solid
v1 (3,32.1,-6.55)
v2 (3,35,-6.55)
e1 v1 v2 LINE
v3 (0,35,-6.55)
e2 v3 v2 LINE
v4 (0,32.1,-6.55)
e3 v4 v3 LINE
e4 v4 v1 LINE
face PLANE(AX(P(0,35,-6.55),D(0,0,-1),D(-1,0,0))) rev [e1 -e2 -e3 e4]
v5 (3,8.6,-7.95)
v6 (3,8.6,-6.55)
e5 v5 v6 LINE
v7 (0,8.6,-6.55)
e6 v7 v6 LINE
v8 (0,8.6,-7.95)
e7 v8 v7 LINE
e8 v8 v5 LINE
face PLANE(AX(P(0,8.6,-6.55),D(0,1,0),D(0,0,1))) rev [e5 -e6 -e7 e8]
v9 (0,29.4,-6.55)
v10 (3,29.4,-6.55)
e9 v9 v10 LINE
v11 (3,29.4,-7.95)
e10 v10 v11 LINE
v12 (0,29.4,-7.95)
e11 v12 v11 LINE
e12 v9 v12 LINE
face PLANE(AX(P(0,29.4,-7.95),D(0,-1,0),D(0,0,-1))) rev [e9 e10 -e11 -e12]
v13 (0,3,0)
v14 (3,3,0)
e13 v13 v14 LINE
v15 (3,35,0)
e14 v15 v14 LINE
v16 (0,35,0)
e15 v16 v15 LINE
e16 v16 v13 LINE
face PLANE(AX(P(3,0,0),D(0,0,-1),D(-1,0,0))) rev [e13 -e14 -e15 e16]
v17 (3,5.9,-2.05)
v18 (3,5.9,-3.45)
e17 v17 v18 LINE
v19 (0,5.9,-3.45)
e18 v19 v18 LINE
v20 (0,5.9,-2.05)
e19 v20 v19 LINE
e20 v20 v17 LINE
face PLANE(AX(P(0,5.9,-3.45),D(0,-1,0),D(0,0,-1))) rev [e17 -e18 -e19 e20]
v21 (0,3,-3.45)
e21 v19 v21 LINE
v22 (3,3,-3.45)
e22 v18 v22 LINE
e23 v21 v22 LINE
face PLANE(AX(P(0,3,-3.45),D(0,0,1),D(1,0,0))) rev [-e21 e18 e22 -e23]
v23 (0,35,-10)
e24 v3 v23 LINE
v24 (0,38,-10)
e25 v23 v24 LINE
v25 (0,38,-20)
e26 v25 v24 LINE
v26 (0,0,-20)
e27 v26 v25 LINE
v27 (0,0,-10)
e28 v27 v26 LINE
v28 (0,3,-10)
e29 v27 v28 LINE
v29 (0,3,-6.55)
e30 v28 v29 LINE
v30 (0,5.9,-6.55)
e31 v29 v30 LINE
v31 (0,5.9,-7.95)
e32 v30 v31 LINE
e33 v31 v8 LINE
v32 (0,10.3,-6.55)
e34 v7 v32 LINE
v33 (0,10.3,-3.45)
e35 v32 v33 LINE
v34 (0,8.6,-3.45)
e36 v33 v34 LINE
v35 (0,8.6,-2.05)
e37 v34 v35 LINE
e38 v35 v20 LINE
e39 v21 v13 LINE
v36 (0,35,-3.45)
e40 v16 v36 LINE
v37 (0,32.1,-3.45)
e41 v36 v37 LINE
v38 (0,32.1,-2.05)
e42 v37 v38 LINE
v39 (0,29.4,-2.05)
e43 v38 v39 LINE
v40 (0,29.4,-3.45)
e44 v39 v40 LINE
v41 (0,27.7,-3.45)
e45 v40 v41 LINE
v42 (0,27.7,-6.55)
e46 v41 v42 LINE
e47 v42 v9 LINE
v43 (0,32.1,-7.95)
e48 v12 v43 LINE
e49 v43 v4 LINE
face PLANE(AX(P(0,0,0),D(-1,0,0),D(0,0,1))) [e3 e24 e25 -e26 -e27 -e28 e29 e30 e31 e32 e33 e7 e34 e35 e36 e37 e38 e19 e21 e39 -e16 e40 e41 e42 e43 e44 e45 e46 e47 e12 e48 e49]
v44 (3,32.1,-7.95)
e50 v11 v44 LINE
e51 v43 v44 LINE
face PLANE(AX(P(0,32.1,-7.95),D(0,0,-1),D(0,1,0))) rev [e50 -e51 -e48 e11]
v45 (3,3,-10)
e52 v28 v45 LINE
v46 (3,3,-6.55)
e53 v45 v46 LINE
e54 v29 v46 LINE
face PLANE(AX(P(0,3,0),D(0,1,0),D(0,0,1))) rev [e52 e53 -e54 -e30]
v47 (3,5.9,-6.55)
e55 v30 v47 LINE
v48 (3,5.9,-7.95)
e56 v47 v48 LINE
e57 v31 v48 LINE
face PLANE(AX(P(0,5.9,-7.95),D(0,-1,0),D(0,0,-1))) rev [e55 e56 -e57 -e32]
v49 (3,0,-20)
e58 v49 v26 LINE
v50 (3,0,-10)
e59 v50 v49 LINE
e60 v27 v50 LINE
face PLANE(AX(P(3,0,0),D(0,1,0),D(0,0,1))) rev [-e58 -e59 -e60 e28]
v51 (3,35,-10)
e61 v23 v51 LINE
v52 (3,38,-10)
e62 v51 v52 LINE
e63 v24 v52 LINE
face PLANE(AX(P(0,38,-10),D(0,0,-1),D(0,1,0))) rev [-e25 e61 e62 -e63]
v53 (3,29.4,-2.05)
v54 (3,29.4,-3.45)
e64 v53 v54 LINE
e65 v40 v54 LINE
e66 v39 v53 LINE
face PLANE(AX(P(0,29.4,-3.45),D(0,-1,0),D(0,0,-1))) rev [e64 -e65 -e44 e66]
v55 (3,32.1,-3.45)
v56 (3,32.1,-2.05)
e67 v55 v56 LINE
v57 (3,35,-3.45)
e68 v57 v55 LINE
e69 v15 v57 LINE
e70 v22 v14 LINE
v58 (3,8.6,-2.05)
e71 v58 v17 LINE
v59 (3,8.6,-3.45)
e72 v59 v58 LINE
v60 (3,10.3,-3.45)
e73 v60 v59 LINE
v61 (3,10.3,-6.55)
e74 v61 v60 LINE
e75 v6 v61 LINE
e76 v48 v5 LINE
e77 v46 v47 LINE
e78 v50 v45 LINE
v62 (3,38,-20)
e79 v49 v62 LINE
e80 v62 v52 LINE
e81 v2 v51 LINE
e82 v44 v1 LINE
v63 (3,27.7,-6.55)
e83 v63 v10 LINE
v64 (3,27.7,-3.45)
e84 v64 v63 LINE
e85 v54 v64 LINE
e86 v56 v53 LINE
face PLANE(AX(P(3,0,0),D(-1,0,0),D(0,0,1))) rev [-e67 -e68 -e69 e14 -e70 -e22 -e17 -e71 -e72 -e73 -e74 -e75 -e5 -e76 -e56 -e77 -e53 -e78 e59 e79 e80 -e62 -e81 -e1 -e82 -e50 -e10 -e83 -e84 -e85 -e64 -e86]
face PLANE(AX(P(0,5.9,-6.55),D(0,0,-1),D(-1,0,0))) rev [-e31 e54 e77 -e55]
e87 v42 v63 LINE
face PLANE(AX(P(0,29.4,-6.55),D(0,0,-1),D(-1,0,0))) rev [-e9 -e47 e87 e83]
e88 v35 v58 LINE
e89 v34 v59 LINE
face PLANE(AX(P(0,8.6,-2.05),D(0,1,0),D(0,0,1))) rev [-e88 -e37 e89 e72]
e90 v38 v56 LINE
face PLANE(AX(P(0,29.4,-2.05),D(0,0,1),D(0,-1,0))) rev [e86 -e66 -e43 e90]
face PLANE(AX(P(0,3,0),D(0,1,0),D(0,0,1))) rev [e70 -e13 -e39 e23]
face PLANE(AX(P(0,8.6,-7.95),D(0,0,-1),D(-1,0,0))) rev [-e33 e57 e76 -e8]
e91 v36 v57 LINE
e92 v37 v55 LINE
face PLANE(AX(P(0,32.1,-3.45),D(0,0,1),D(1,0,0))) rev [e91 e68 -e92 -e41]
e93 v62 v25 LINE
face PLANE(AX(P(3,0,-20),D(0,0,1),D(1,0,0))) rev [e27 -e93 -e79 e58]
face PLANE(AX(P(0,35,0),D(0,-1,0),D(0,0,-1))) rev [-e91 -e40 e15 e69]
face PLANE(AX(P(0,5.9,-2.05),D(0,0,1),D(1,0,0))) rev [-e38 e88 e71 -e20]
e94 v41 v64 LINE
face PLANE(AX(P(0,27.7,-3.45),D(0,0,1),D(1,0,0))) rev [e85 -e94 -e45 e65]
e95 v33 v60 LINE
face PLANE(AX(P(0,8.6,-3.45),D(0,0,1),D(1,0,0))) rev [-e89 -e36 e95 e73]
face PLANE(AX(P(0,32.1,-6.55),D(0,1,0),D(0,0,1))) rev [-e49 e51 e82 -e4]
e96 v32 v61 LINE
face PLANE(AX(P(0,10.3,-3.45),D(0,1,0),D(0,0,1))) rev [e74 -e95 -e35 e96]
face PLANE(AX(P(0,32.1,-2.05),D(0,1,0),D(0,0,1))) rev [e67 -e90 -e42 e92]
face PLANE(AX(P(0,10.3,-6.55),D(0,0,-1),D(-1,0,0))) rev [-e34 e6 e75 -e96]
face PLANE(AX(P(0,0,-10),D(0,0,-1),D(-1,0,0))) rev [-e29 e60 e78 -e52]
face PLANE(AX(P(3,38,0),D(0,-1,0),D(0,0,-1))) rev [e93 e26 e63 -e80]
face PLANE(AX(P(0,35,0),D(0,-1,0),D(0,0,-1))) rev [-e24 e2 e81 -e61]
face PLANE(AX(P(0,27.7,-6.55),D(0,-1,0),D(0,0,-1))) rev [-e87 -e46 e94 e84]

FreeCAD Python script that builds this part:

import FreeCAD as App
import Part
import Sketcher
Q = App.Units.Quantity

doc = App.newDocument("Part")
body = doc.addObject("PartDesign::Body", "Body")

sketch1 = body.newObject("Sketcher::SketchObject", "Sketch")
sketch1.AttachmentSupport = (doc.getObject("YZ_Plane"), [""])
sketch1.MapMode = "FlatFace"
sketch1.addGeometry([
    Part.LineSegment(App.Vector(38, 0, 0), App.Vector(0, 0, 0)),
    Part.LineSegment(App.Vector(0, 0, 0), App.Vector(0, -20, 0)),
    Part.LineSegment(App.Vector(0, -20, 0), App.Vector(38, -20, 0)),
    Part.LineSegment(App.Vector(38, -20, 0), App.Vector(38, 0, 0)),
], False)
sketch1.addConstraint([
    Sketcher.Constraint("Coincident", 0, 2, 1, 1),
    Sketcher.Constraint("Coincident", 1, 2, 2, 1),
    Sketcher.Constraint("Coincident", 2, 2, 3, 1),
    Sketcher.Constraint("Coincident", 3, 2, 0, 1),
    Sketcher.Constraint("Horizontal", 0),
    Sketcher.Constraint("Vertical", 1),
    Sketcher.Constraint("Horizontal", 2),
    Sketcher.Constraint("Vertical", 3),
    Sketcher.Constraint("Coincident", 0, 2, -1, 1),
    Sketcher.Constraint("DistanceX", 0, 2, 0, 1, Q("38 mm")),
    Sketcher.Constraint("DistanceY", 1, 2, 1, 1, Q("20 mm")),
])
pad1 = body.newObject("PartDesign::Pad", "Pad")
pad1.Profile = sketch1
pad1.Length = 3

sketch2 = body.newObject("Sketcher::SketchObject", "Sketch001")
sketch2.AttachmentSupport = (doc.getObject("YZ_Plane"), [""])
sketch2.MapMode = "FlatFace"
sketch2.AttachmentOffset = App.Placement(App.Vector(0, 0, 3), App.Rotation())
sketch2.addGeometry([
    Part.LineSegment(App.Vector(38, 0, 0), App.Vector(35, 0, 0)),
    Part.LineSegment(App.Vector(35, 0, 0), App.Vector(35, -10, 0)),
    Part.LineSegment(App.Vector(35, -10, 0), App.Vector(38, -10, 0)),
    Part.LineSegment(App.Vector(38, -10, 0), App.Vector(38, 0, 0)),
    Part.LineSegment(App.Vector(3, 0, 0), App.Vector(0, 0, 0)),
    Part.LineSegment(App.Vector(0, 0, 0), App.Vector(0, -10, 0)),
    Part.LineSegment(App.Vector(0, -10, 0), App.Vector(3, -10, 0)),
    Part.LineSegment(App.Vector(3, -10, 0), App.Vector(3, 0, 0)),
], False)
sketch2.addConstraint([
    Sketcher.Constraint("Coincident", 0, 2, 1, 1),
    Sketcher.Constraint("Coincident", 1, 2, 2, 1),
    Sketcher.Constraint("Coincident", 2, 2, 3, 1),
    Sketcher.Constraint("Coincident", 3, 2, 0, 1),
    Sketcher.Constraint("Coincident", 4, 2, 5, 1),
    Sketcher.Constraint("Coincident", 5, 2, 6, 1),
    Sketcher.Constraint("Coincident", 6, 2, 7, 1),
    Sketcher.Constraint("Coincident", 7, 2, 4, 1),
    Sketcher.Constraint("Horizontal", 0),
    Sketcher.Constraint("Vertical", 1),
    Sketcher.Constraint("Horizontal", 2),
    Sketcher.Constraint("Vertical", 3),
    Sketcher.Constraint("Horizontal", 4),
    Sketcher.Constraint("Vertical", 5),
    Sketcher.Constraint("Horizontal", 6),
    Sketcher.Constraint("Vertical", 7),
    Sketcher.Constraint("Coincident", 4, 2, -1, 1),
    Sketcher.Constraint("PointOnObject", 0, 2, -1),
    Sketcher.Constraint("Horizontal", 2, 2, 5, 2),
    Sketcher.Constraint("Equal", 2, 4),
    Sketcher.Constraint("DistanceX", 0, 2, 0, 1, Q("3 mm")),
    Sketcher.Constraint("DistanceY", 1, 2, 1, 1, Q("10 mm")),
    Sketcher.Constraint("DistanceX", -1, 1, 0, 2, Q("35 mm")),
])
pocket1 = body.newObject("PartDesign::Pocket", "Pocket")
pocket1.Profile = sketch2
pocket1.Length = 3

sketch3 = body.newObject("Sketcher::SketchObject", "Sketch002")
sketch3.AttachmentSupport = (doc.getObject("YZ_Plane"), [""])
sketch3.MapMode = "FlatFace"
sketch3.AttachmentOffset = App.Placement(App.Vector(0, 0, 3), App.Rotation())
sketch3.addGeometry([
    Part.LineSegment(App.Vector(5.9, -3.45, 0), App.Vector(3, -3.45, 0)),
    Part.LineSegment(App.Vector(3, -3.45, 0), App.Vector(3, -6.55, 0)),
    Part.LineSegment(App.Vector(3, -6.55, 0), App.Vector(5.9, -6.55, 0)),
    Part.LineSegment(App.Vector(5.9, -6.55, 0), App.Vector(5.9, -7.95, 0)),
    Part.LineSegment(App.Vector(5.9, -7.95, 0), App.Vector(8.6, -7.95, 0)),
    Part.LineSegment(App.Vector(8.6, -7.95, 0), App.Vector(8.6, -6.55, 0)),
    Part.LineSegment(App.Vector(8.6, -6.55, 0), App.Vector(10.3, -6.55, 0)),
    Part.LineSegment(App.Vector(10.3, -6.55, 0), App.Vector(10.3, -3.45, 0)),
    Part.LineSegment(App.Vector(10.3, -3.45, 0), App.Vector(8.6, -3.45, 0)),
    Part.LineSegment(App.Vector(8.6, -3.45, 0), App.Vector(8.6, -2.05, 0)),
    Part.LineSegment(App.Vector(8.6, -2.05, 0), App.Vector(5.9, -2.05, 0)),
    Part.LineSegment(App.Vector(5.9, -2.05, 0), App.Vector(5.9, -3.45, 0)),
    Part.LineSegment(App.Vector(32.1, -6.55, 0), App.Vector(35, -6.55, 0)),
    Part.LineSegment(App.Vector(35, -6.55, 0), App.Vector(35, -3.45, 0)),
    Part.LineSegment(App.Vector(35, -3.45, 0), App.Vector(32.1, -3.45, 0)),
    Part.LineSegment(App.Vector(32.1, -3.45, 0), App.Vector(32.1, -2.05, 0)),
    Part.LineSegment(App.Vector(32.1, -2.05, 0), App.Vector(29.4, -2.05, 0)),
    Part.LineSegment(App.Vector(29.4, -2.05, 0), App.Vector(29.4, -3.45, 0)),
    Part.LineSegment(App.Vector(29.4, -3.45, 0), App.Vector(27.7, -3.45, 0)),
    Part.LineSegment(App.Vector(27.7, -3.45, 0), App.Vector(27.7, -6.55, 0)),
    Part.LineSegment(App.Vector(27.7, -6.55, 0), App.Vector(29.4, -6.55, 0)),
    Part.LineSegment(App.Vector(29.4, -6.55, 0), App.Vector(29.4, -7.95, 0)),
    Part.LineSegment(App.Vector(29.4, -7.95, 0), App.Vector(32.1, -7.95, 0)),
    Part.LineSegment(App.Vector(32.1, -7.95, 0), App.Vector(32.1, -6.55, 0)),
], False)
sketch3.addConstraint([
    Sketcher.Constraint("Coincident", 0, 2, 1, 1),
    Sketcher.Constraint("Coincident", 1, 2, 2, 1),
    Sketcher.Constraint("Coincident", 2, 2, 3, 1),
    Sketcher.Constraint("Coincident", 3, 2, 4, 1),
    Sketcher.Constraint("Coincident", 4, 2, 5, 1),
    Sketcher.Constraint("Coincident", 5, 2, 6, 1),
    Sketcher.Constraint("Coincident", 6, 2, 7, 1),
    Sketcher.Constraint("Coincident", 7, 2, 8, 1),
    Sketcher.Constraint("Coincident", 8, 2, 9, 1),
    Sketcher.Constraint("Coincident", 9, 2, 10, 1),
    Sketcher.Constraint("Coincident", 10, 2, 11, 1),
    Sketcher.Constraint("Coincident", 11, 2, 0, 1),
    Sketcher.Constraint("Coincident", 12, 2, 13, 1),
    Sketcher.Constraint("Coincident", 13, 2, 14, 1),
    Sketcher.Constraint("Coincident", 14, 2, 15, 1),
    Sketcher.Constraint("Coincident", 15, 2, 16, 1),
    Sketcher.Constraint("Coincident", 16, 2, 17, 1),
    Sketcher.Constraint("Coincident", 17, 2, 18, 1),
    Sketcher.Constraint("Coincident", 18, 2, 19, 1),
    Sketcher.Constraint("Coincident", 19, 2, 20, 1),
    Sketcher.Constraint("Coincident", 20, 2, 21, 1),
    Sketcher.Constraint("Coincident", 21, 2, 22, 1),
    Sketcher.Constraint("Coincident", 22, 2, 23, 1),
    Sketcher.Constraint("Coincident", 23, 2, 12, 1),
    Sketcher.Constraint("Horizontal", 0),
    Sketcher.Constraint("Vertical", 1),
    Sketcher.Constraint("Horizontal", 2),
    Sketcher.Constraint("Vertical", 3),
    Sketcher.Constraint("Horizontal", 4),
    Sketcher.Constraint("Vertical", 5),
    Sketcher.Constraint("Horizontal", 6),
    Sketcher.Constraint("Vertical", 7),
    Sketcher.Constraint("Horizontal", 8),
    Sketcher.Constraint("Vertical", 9),
    Sketcher.Constraint("Horizontal", 10),
    Sketcher.Constraint("Vertical", 11),
    Sketcher.Constraint("Horizontal", 12),
    Sketcher.Constraint("Vertical", 13),
    Sketcher.Constraint("Horizontal", 14),
    Sketcher.Constraint("Vertical", 15),
    Sketcher.Constraint("Horizontal", 16),
    Sketcher.Constraint("Vertical", 17),
    Sketcher.Constraint("Horizontal", 18),
    Sketcher.Constraint("Vertical", 19),
    Sketcher.Constraint("Horizontal", 20),
    Sketcher.Constraint("Vertical", 21),
    Sketcher.Constraint("Horizontal", 22),
    Sketcher.Constraint("Vertical", 23),
    Sketcher.Constraint("Horizontal", 2, 2, 5, 2),
    Sketcher.Constraint("Horizontal", 0, 2, 7, 2),
    Sketcher.Constraint("Horizontal", 6, 2, 12, 2),
    Sketcher.Constraint("Horizontal", 11, 2, 13, 2),
    Sketcher.Constraint("Horizontal", 10, 2, 15, 2),
    Sketcher.Constraint("Horizontal", 14, 2, 17, 2),
    Sketcher.Constraint("Horizontal", 12, 2, 19, 2),
    Sketcher.Constraint("Horizontal", 4, 2, 21, 2),
    Sketcher.Constraint("Vertical", 5, 2, 8, 2),
    Sketcher.Constraint("Vertical", 3, 2, 10, 2),
    Sketcher.Constraint("Vertical", 17, 2, 20, 2),
    Sketcher.Constraint("Vertical", 15, 2, 22, 2),
    Sketcher.Constraint("Equal", 2, 12),
    Sketcher.Constraint("Equal", 10, 16),
    Sketcher.Constraint("Equal", 8, 18),
    Sketcher.Constraint("Equal", 5, 9),
    Sketcher.Constraint("DistanceX", 0, 2, 0, 1, Q("2.9 mm")),
    Sketcher.Constraint("DistanceX", 4, 1, 4, 2, Q("2.7 mm")),
    Sketcher.Constraint("DistanceX", 6, 1, 6, 2, Q("1.7 mm")),
    Sketcher.Constraint("DistanceY", 1, 2, 1, 1, Q("3.1 mm")),
    Sketcher.Constraint("DistanceY", 3, 2, 3, 1, Q("1.4 mm")),
    Sketcher.Constraint("DistanceX", -1, 1, 0, 2, Q("3 mm")),
    Sketcher.Constraint("DistanceX", -1, 1, 12, 2, Q("35 mm")),
    Sketcher.Constraint("DistanceY", 0, 2, -1, 1, Q("3.45 mm")),
])
pocket2 = body.newObject("PartDesign::Pocket", "Pocket001")
pocket2.Profile = sketch3
pocket2.Length = 3

doc.recompute()
